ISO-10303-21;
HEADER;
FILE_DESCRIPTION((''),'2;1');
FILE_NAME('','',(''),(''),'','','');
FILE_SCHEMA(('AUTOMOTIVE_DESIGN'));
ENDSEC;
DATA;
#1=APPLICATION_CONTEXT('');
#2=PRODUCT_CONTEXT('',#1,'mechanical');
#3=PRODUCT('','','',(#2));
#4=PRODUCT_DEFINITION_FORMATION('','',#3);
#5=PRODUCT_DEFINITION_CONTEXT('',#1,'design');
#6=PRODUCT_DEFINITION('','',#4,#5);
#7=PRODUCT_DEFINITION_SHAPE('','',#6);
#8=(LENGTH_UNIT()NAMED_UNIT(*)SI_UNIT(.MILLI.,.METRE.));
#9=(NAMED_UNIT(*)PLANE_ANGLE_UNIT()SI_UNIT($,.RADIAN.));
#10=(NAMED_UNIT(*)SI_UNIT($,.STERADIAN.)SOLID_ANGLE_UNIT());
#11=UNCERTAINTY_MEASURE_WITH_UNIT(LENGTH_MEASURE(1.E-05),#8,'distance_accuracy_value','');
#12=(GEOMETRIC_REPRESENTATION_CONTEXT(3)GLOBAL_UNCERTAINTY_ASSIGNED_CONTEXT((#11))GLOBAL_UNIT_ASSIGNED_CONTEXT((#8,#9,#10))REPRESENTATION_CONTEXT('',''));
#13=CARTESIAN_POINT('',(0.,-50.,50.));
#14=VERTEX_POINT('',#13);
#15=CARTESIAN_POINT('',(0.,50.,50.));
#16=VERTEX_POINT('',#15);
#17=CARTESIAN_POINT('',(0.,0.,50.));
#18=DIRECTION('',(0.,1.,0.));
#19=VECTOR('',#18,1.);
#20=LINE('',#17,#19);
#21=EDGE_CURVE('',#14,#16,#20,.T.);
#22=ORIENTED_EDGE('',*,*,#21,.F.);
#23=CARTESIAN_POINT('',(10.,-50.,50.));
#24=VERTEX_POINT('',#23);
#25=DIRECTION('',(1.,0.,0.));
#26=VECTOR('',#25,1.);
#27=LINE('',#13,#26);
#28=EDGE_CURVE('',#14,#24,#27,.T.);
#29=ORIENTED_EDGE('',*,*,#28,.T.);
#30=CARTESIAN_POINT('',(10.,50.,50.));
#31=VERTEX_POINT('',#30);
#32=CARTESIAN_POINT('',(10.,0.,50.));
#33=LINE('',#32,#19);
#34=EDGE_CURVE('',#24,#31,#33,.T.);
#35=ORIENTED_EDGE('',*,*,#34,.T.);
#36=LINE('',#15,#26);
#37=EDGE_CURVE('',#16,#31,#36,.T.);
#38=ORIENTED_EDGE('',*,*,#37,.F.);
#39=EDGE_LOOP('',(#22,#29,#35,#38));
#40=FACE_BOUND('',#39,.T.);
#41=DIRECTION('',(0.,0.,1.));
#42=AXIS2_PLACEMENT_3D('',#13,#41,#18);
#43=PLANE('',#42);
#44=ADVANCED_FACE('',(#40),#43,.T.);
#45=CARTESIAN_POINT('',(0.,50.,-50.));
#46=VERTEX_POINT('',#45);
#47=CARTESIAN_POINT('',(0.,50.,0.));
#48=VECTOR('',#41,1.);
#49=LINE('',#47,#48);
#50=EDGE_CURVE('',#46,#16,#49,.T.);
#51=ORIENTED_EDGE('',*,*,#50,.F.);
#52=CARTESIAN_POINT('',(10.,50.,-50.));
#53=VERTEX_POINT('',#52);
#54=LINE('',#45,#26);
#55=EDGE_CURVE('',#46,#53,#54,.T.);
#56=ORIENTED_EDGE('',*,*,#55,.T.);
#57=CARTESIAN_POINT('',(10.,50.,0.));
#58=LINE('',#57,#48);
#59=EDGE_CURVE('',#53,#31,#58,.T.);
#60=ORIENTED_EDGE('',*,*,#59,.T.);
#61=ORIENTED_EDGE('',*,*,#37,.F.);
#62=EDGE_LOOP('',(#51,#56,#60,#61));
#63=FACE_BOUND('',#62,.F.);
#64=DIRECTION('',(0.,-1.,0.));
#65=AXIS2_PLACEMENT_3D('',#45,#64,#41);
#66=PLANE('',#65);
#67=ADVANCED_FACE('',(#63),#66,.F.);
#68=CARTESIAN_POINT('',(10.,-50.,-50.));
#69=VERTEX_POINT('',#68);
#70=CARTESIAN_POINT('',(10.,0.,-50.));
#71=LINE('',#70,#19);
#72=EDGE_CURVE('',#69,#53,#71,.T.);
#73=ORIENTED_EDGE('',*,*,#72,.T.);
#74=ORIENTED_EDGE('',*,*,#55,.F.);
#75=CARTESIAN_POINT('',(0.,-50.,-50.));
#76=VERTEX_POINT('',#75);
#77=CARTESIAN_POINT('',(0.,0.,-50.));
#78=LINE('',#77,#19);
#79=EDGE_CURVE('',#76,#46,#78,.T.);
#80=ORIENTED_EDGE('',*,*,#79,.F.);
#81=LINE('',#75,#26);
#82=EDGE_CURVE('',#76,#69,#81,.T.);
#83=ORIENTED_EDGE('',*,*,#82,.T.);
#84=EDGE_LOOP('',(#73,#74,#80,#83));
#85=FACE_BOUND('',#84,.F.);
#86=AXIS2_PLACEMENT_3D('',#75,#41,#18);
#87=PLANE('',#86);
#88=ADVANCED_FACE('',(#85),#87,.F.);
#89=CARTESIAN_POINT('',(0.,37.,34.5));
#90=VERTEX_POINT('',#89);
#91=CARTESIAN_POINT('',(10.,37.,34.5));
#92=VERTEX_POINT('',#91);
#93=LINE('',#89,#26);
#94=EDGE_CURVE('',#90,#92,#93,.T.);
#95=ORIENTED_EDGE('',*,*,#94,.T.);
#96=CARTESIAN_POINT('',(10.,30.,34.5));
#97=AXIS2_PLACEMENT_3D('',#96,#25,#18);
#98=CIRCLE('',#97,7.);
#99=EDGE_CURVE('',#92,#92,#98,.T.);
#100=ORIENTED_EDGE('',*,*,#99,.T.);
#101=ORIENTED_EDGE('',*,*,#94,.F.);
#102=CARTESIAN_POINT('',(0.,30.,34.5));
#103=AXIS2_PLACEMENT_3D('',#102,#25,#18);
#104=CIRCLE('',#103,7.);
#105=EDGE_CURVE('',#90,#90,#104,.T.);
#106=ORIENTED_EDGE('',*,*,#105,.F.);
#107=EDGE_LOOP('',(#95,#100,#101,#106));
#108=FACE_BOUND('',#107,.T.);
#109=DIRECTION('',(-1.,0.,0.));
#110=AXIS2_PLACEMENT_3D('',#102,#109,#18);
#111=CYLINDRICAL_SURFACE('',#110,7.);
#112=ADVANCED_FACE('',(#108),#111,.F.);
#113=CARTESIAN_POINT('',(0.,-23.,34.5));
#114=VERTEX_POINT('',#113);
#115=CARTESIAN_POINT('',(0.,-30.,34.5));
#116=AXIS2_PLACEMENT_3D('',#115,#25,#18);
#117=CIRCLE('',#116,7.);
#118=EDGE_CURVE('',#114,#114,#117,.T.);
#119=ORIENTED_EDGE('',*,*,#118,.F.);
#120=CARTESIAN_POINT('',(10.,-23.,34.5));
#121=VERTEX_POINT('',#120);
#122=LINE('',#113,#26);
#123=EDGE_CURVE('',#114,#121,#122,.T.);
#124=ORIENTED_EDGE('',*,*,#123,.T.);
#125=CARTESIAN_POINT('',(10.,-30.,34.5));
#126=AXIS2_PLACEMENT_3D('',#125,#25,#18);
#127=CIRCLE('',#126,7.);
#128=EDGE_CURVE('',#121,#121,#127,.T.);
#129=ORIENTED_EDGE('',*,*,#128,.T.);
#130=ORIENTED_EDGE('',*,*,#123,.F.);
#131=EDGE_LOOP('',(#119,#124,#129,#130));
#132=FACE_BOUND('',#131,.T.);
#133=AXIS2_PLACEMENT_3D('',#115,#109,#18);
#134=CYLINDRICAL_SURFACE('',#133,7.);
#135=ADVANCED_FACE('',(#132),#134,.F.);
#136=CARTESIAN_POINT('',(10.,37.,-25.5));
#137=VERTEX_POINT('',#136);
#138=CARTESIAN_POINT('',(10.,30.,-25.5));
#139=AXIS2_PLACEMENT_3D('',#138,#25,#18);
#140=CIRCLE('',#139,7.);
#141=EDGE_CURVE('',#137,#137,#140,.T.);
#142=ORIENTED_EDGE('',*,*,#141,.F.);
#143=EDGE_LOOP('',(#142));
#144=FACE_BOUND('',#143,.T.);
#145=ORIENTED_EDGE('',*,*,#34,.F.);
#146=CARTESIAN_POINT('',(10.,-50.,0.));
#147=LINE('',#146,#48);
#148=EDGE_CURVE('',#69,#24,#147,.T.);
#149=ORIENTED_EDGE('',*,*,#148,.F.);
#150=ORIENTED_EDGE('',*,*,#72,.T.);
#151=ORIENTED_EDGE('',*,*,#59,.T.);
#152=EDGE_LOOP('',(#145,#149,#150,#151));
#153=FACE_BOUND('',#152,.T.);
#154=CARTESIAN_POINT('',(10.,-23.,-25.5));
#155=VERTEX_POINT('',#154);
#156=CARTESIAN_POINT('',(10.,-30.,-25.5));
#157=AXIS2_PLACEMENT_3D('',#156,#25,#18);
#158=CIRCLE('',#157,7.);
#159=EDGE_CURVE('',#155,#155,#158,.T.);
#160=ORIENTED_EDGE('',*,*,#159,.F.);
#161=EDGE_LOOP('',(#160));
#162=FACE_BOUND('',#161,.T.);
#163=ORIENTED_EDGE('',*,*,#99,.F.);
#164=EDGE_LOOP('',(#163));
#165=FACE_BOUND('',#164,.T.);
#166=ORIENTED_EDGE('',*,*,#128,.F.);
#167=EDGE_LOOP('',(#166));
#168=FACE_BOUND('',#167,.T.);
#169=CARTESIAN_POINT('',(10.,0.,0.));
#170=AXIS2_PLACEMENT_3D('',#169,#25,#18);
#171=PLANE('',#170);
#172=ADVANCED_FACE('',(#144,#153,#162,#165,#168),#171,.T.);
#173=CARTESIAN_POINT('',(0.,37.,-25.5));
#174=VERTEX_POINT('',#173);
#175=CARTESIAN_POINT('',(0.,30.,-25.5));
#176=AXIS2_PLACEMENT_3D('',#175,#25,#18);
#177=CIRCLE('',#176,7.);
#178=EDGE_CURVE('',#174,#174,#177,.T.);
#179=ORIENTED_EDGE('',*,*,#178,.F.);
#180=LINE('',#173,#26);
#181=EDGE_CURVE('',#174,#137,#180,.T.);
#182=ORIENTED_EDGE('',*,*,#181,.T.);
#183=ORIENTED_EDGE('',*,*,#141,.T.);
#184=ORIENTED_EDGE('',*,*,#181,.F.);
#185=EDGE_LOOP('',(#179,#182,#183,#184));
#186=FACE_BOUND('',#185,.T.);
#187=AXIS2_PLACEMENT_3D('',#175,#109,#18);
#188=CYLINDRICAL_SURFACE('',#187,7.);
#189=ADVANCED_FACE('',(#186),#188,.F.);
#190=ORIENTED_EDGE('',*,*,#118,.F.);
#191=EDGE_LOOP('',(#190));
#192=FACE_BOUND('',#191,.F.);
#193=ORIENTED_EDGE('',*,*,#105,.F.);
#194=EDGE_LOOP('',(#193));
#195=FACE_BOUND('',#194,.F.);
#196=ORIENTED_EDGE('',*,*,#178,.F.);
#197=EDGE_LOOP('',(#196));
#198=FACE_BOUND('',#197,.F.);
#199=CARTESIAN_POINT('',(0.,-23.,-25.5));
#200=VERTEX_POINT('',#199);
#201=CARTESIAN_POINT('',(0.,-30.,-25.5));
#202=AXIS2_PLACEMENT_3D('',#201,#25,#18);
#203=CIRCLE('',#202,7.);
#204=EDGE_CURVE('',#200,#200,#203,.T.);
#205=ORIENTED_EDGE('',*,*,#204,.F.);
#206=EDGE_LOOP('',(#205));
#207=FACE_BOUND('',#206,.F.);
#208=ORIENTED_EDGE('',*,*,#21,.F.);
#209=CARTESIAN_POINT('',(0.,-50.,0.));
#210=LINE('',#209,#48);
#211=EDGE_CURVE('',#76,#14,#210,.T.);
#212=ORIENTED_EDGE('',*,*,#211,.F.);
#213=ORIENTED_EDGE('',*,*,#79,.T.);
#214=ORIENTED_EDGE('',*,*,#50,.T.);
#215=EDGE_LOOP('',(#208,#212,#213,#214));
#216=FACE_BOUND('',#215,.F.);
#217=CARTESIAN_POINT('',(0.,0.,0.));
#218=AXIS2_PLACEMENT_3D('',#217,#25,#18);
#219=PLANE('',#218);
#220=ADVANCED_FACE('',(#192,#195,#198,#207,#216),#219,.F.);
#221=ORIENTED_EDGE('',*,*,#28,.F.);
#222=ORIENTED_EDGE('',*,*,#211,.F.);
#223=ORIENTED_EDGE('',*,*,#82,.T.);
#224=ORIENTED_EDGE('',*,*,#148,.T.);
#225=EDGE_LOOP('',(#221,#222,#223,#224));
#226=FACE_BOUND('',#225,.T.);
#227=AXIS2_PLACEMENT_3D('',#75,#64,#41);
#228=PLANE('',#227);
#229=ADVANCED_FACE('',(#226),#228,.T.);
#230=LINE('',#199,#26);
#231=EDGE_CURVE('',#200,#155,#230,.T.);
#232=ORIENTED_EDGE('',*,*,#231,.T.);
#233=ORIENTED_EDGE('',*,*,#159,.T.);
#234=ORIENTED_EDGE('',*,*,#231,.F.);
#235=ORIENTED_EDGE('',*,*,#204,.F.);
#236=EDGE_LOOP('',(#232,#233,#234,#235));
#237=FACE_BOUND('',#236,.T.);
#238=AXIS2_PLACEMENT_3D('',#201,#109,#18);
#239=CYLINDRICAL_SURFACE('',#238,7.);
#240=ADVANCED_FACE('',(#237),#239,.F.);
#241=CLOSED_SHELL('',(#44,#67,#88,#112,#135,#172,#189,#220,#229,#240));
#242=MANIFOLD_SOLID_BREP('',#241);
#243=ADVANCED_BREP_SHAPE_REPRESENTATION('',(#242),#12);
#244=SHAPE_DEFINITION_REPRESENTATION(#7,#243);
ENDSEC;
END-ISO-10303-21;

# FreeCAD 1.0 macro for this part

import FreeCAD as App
import Part
import Sketcher
from FreeCAD import Vector


def add_polygon(sketch, points):
    """Adds a closed chain of lines whose ends are joined by coincident constraints."""
    first, n = sketch.GeometryCount, len(points)
    for a, b in zip(points, points[1:] + points[:1]):
        sketch.addGeometry(Part.LineSegment(App.Vector(*a, 0), App.Vector(*b, 0)), False)
    for i in range(n):
        sketch.addConstraint(Sketcher.Constraint("Coincident", first + i, 2, first + (i + 1) % n, 1))

doc = App.newDocument("Part")
params = doc.addObject("Spreadsheet::Sheet", "Params")
for row, (alias, value) in enumerate([
    ("sketch1_diameter", "14 mm"),
    ("sketch1_width", "100 mm"),
    ("pad1_length", "10 mm"),
], start=1):
    params.set(f"A{row}", alias)
    params.set(f"B{row}", "=" + value)
    params.setAlias(f"B{row}", alias)

body = doc.addObject("PartDesign::Body", "Body")

# Sketch on YZ plane
sketch1 = doc.addObject("Sketcher::SketchObject", "Sketch")
body.addObject(sketch1)
sketch1.AttachmentSupport = (doc.YZ_Plane, [""])
sketch1.MapMode = "FlatFace"
add_polygon(sketch1, [(-50, 50), (-50, -50), (50, -50), (50, 50)])  # lines 0-3
sketch1.addGeometry(Part.Circle(Vector(-30, -26, 0), Vector(0, 0, 1), 7), False)  # 4
sketch1.addGeometry(Part.Circle(Vector(30, -26, 0), Vector(0, 0, 1), 7), False)  # 5
sketch1.addGeometry(Part.Circle(Vector(-30, 34, 0), Vector(0, 0, 1), 7), False)  # 6
sketch1.addGeometry(Part.Circle(Vector(30, 34, 0), Vector(0, 0, 1), 7), False)  # 7
sketch1.addConstraint([
    Sketcher.Constraint("Vertical", 0),
    Sketcher.Constraint("Horizontal", 1),
    Sketcher.Constraint("Vertical", 2),
    Sketcher.Constraint("Horizontal", 3),
    Sketcher.Constraint("Equal", 4, 5),
    Sketcher.Constraint("Equal", 5, 6),
    Sketcher.Constraint("Equal", 6, 7),
    Sketcher.Constraint("Symmetric", 0, 2, 2, 2, -1, 1),
    Sketcher.Constraint("Symmetric", 4, 3, 5, 3, -2),
    Sketcher.Constraint("Symmetric", 6, 3, 7, 3, -2),
    Sketcher.Constraint("Vertical", 4, 3, 6, 3),
    Sketcher.Constraint("Equal", 3, 0),
    Sketcher.Constraint("Diameter", 4, 14.0),
    Sketcher.Constraint("DistanceX", 1, 1, 1, 2, 100.0),
    Sketcher.Constraint("DistanceX", 4, 3, -1, 1, 30.0),
    Sketcher.Constraint("DistanceY", 4, 3, 6, 3, 60.0),
    Sketcher.Constraint("DistanceY", 4, 3, -1, 1, 25.5),
])
sketch1.setExpression("Constraints[16]", "Params.sketch1_diameter")
sketch1.setExpression("Constraints[17]", "Params.sketch1_width")
pad1 = doc.addObject("PartDesign::Pad", "Pad")
body.addObject(pad1)
pad1.Profile = sketch1
pad1.setExpression("Length", "Params.pad1_length")

doc.recompute()
